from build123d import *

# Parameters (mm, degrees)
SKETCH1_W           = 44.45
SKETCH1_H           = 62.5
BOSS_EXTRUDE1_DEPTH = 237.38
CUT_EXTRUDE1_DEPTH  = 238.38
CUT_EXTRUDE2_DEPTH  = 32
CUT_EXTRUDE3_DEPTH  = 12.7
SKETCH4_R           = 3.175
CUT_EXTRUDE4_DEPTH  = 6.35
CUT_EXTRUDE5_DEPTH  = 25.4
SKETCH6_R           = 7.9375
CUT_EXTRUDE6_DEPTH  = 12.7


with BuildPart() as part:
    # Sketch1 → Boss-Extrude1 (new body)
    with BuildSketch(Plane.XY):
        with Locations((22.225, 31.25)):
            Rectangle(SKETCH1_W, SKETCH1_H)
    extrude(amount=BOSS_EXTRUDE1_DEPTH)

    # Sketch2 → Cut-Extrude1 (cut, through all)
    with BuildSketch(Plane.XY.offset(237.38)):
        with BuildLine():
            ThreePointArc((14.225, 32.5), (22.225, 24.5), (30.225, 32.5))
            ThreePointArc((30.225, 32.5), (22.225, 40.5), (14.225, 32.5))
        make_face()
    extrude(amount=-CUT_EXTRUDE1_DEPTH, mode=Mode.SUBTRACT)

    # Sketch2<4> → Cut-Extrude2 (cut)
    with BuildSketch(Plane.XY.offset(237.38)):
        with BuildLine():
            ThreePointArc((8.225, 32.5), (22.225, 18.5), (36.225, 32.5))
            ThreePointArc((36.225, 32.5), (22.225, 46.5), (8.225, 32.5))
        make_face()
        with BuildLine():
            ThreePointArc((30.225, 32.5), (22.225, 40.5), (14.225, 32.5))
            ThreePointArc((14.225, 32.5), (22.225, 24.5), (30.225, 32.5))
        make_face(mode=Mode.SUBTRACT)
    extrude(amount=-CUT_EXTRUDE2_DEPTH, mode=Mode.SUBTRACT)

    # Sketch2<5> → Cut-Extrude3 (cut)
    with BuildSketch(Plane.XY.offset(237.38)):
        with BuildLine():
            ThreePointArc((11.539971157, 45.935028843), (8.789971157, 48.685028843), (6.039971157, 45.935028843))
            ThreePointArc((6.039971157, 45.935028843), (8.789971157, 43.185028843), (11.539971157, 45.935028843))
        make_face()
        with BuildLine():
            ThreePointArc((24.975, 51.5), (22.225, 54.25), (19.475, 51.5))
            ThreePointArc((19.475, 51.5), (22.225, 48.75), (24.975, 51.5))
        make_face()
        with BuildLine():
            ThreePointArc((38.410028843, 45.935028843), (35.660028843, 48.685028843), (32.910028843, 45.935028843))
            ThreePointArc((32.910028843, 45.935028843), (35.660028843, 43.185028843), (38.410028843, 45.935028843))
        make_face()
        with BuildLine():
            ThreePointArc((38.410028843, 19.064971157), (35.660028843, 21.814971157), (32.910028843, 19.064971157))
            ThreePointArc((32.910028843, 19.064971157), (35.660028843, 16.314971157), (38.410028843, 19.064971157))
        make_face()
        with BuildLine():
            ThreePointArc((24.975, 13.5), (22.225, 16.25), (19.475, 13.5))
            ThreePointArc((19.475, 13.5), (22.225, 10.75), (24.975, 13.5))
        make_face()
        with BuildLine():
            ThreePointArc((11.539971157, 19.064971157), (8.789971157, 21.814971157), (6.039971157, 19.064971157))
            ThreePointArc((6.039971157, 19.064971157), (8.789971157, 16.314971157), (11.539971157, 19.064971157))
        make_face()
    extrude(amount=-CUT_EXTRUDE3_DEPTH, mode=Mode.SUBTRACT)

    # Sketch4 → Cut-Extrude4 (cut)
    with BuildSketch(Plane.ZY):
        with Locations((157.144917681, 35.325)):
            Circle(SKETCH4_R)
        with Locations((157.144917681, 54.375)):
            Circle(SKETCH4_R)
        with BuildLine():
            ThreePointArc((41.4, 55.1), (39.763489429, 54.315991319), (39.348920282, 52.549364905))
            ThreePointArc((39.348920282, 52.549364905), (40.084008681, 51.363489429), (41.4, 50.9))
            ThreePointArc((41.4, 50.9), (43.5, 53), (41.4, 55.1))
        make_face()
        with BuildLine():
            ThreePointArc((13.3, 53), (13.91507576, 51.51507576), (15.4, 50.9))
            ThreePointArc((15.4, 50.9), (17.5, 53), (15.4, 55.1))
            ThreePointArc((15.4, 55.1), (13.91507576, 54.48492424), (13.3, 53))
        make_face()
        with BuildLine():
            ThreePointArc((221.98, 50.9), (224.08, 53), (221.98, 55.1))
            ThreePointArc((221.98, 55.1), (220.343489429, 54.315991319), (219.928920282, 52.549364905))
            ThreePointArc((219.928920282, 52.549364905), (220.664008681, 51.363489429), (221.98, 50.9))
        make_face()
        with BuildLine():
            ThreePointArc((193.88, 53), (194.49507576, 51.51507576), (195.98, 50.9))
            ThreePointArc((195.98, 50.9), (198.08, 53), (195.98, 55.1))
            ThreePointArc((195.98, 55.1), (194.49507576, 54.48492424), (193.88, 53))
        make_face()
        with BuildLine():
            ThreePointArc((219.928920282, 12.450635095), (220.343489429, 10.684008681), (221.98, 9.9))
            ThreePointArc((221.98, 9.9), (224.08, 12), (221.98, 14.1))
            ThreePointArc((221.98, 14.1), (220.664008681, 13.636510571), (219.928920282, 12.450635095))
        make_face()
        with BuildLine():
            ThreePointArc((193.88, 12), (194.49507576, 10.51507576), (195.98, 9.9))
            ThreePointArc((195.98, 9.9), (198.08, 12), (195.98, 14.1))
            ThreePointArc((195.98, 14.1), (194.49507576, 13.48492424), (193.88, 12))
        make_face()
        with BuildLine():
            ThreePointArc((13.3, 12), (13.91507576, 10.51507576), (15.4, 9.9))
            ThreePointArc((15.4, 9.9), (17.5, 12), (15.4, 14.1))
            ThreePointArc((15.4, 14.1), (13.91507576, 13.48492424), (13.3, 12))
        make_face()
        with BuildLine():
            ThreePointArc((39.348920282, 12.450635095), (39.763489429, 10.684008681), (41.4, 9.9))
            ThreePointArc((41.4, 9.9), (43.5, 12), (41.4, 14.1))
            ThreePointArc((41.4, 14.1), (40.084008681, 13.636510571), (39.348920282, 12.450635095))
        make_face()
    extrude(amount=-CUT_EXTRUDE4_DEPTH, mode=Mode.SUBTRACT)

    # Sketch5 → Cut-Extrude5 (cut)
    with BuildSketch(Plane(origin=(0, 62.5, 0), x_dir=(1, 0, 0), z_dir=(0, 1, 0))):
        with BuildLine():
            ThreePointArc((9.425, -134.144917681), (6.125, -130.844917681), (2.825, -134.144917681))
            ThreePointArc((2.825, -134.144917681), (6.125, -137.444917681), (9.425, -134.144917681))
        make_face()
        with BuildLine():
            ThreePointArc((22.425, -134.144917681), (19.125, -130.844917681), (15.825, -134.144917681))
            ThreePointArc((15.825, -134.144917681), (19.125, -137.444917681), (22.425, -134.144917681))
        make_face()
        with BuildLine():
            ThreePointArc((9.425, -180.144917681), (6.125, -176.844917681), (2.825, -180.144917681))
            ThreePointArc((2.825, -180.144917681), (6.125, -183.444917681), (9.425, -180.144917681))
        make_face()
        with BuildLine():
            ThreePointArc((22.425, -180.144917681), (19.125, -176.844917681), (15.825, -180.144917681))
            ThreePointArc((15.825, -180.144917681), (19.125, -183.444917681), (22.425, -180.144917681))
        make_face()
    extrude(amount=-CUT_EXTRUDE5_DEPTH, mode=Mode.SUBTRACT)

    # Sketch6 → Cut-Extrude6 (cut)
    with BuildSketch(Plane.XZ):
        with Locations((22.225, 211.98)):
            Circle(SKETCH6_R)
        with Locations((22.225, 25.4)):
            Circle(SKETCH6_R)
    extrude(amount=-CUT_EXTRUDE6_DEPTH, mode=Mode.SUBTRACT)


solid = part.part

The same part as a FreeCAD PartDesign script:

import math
import FreeCAD as App
import Part
import Sketcher

V = App.Vector

doc = App.newDocument("Part")
body = doc.addObject("PartDesign::Body", "Body")

sketch1 = body.newObject("Sketcher::SketchObject", "Sketch")
sketch1.AttachmentSupport = (doc.getObject("XY_Plane"), [""])
sketch1.MapMode = "FlatFace"
sketch1.addGeometry(Part.LineSegment(V(0, 62, 0), V(0, 0, 0)), False)
sketch1.addGeometry(Part.LineSegment(V(0, 0, 0), V(44, 0, 0)), False)
sketch1.addGeometry(Part.LineSegment(V(44, 0, 0), V(44, 62, 0)), False)
sketch1.addGeometry(Part.LineSegment(V(44, 62, 0), V(0, 62, 0)), False)
sketch1.addConstraint(Sketcher.Constraint("Coincident", 0, 2, 1, 1))
sketch1.addConstraint(Sketcher.Constraint("Coincident", 1, 2, 2, 1))
sketch1.addConstraint(Sketcher.Constraint("Coincident", 2, 2, 3, 1))
sketch1.addConstraint(Sketcher.Constraint("Coincident", 3, 2, 0, 1))
sketch1.addConstraint(Sketcher.Constraint("Vertical", 0))
sketch1.addConstraint(Sketcher.Constraint("Horizontal", 1))
sketch1.addConstraint(Sketcher.Constraint("Vertical", 2))
sketch1.addConstraint(Sketcher.Constraint("Horizontal", 3))
sketch1.addConstraint(Sketcher.Constraint("Coincident", 0, 2, -1, 1))
sketch1.addConstraint(Sketcher.Constraint("DistanceY", 0, 2, 0, 1, 62.5))
sketch1.addConstraint(Sketcher.Constraint("DistanceX", 1, 1, 1, 2, 44.45))
pad1 = body.newObject("PartDesign::Pad", "Pad")
pad1.Profile = sketch1
pad1.Length = 237.38

sketch2 = body.newObject("Sketcher::SketchObject", "Sketch001")
sketch2.AttachmentSupport = (doc.getObject("XY_Plane"), [""])
sketch2.MapMode = "FlatFace"
sketch2.AttachmentOffset = App.Placement(V(0, 0, 237.38), App.Rotation())
sketch2.addGeometry(Part.Circle(V(22, 32, 0), V(0, 0, 1), 8), False)
sketch2.addConstraint(Sketcher.Constraint("Diameter", 0, 16.0))
sketch2.addConstraint(Sketcher.Constraint("DistanceY", -1, 1, 0, 3, 32.5))
sketch2.addConstraint(Sketcher.Constraint("DistanceX", -1, 1, 0, 3, 22.225))
pocket1 = body.newObject("PartDesign::Pocket", "Pocket")
pocket1.Profile = sketch2
pocket1.Type = "ThroughAll"

sketch3 = body.newObject("Sketcher::SketchObject", "Sketch002")
sketch3.AttachmentSupport = (doc.getObject("XY_Plane"), [""])
sketch3.MapMode = "FlatFace"
sketch3.AttachmentOffset = App.Placement(V(0, 0, 237.38), App.Rotation())
sketch3.addGeometry(Part.Circle(V(22, 32, 0), V(0, 0, 1), 14), False)
sketch3.addGeometry(Part.Circle(V(22, 32, 0), V(0, 0, 1), 8), False)
sketch3.addConstraint(Sketcher.Constraint("Coincident", 1, 3, 0, 3))
sketch3.addConstraint(Sketcher.Constraint("Diameter", 0, 28.0))
sketch3.addConstraint(Sketcher.Constraint("Diameter", 1, 16.0))
sketch3.addConstraint(Sketcher.Constraint("DistanceY", -1, 1, 0, 3, 32.5))
sketch3.addConstraint(Sketcher.Constraint("DistanceX", -1, 1, 0, 3, 22.225))
pocket2 = body.newObject("PartDesign::Pocket", "Pocket001")
pocket2.Profile = sketch3
pocket2.Length = 32

sketch4 = body.newObject("Sketcher::SketchObject", "Sketch003")
sketch4.AttachmentSupport = (doc.getObject("XY_Plane"), [""])
sketch4.MapMode = "FlatFace"
sketch4.AttachmentOffset = App.Placement(V(0, 0, 237.38), App.Rotation())
sketch4.addGeometry(Part.Circle(V(8.8, 45.9, 0), V(0, 0, 1), 2.8), False)
sketch4.addGeometry(Part.Circle(V(22.2, 51.5, 0), V(0, 0, 1), 2.8), False)
sketch4.addGeometry(Part.Circle(V(35.7, 45.9, 0), V(0, 0, 1), 2.8), False)
sketch4.addGeometry(Part.Circle(V(35.7, 19.1, 0), V(0, 0, 1), 2.8), False)
sketch4.addGeometry(Part.Circle(V(22.2, 13.5, 0), V(0, 0, 1), 2.8), False)
sketch4.addGeometry(Part.Circle(V(8.8, 19.1, 0), V(0, 0, 1), 2.8), False)
sketch4.addConstraint(Sketcher.Constraint("Equal", 0, 1))
sketch4.addConstraint(Sketcher.Constraint("Equal", 1, 2))
sketch4.addConstraint(Sketcher.Constraint("Equal", 2, 3))
sketch4.addConstraint(Sketcher.Constraint("Equal", 3, 4))
sketch4.addConstraint(Sketcher.Constraint("Equal", 4, 5))
sketch4.addConstraint(Sketcher.Constraint("Horizontal", 0, 3, 2, 3))
sketch4.addConstraint(Sketcher.Constraint("Horizontal", 3, 3, 5, 3))
sketch4.addConstraint(Sketcher.Constraint("Vertical", 2, 3, 3, 3))
sketch4.addConstraint(Sketcher.Constraint("Vertical", 1, 3, 4, 3))
sketch4.addConstraint(Sketcher.Constraint("Vertical", 0, 3, 5, 3))
sketch4.addConstraint(Sketcher.Constraint("Diameter", 0, 5.5))
sketch4.addConstraint(Sketcher.Constraint("DistanceY", 4, 3, 1, 3, 38.0))
sketch4.addConstraint(Sketcher.Constraint("DistanceY", -1, 1, 1, 3, 51.5))
sketch4.addConstraint(Sketcher.Constraint("DistanceX", -1, 1, 1, 3, 22.225))
sketch4.addConstraint(Sketcher.Constraint("DistanceX", -1, 1, 0, 3, 8.789971))
sketch4.addConstraint(Sketcher.Constraint("DistanceY", -1, 1, 0, 3, 45.935029))
sketch4.addConstraint(Sketcher.Constraint("DistanceX", -1, 1, 2, 3, 35.660029))
sketch4.addConstraint(Sketcher.Constraint("DistanceY", -1, 1, 3, 3, 19.064971))
pocket3 = body.newObject("PartDesign::Pocket", "Pocket002")
pocket3.Profile = sketch4
pocket3.Length = 12.7

sketch5 = body.newObject("Sketcher::SketchObject", "Sketch004")
sketch5.AttachmentSupport = (doc.getObject("YZ_Plane"), [""])
sketch5.MapMode = "FlatFace"
sketch5.addGeometry(Part.Circle(V(35.3, 157.1, 0), V(0, 0, 1), 3.2), False)
sketch5.addGeometry(Part.Circle(V(54.4, 157.1, 0), V(0, 0, 1), 3.2), False)
sketch5.addGeometry(Part.ArcOfCircle(Part.Circle(V(53, 41.4, 0), V(0, 0, 1), 2.1), math.radians(-102), math.radians(0)), False)
sketch5.addGeometry(Part.ArcOfCircle(Part.Circle(V(53, 41.4, 0), V(0, 0, 1), 2.1), math.radians(180), math.radians(258)), False)
sketch5.addGeometry(Part.ArcOfCircle(Part.Circle(V(53, 41.4, 0), V(0, 0, 1), 2.1), math.radians(0), math.radians(180)), False)
sketch5.addGeometry(Part.ArcOfCircle(Part.Circle(V(53, 15.4, 0), V(0, 0, 1), 2.1), math.radians(-180), math.radians(-90)), False)
sketch5.addGeometry(Part.ArcOfCircle(Part.Circle(V(53, 15.4, 0), V(0, 0, 1), 2.1), math.radians(0), math.radians(180)), False)
sketch5.addGeometry(Part.ArcOfCircle(Part.Circle(V(53, 15.4, 0), V(0, 0, 1), 2.1), math.radians(-90), math.radians(0)), False)
sketch5.addGeometry(Part.ArcOfCircle(Part.Circle(V(53, 222, 0), V(0, 0, 1), 2.1), math.radians(0), math.radians(180)), False)
sketch5.addGeometry(Part.ArcOfCircle(Part.Circle(V(53, 222, 0), V(0, 0, 1), 2.1), math.radians(-102), math.radians(0)), False)
sketch5.addGeometry(Part.ArcOfCircle(Part.Circle(V(53, 222, 0), V(0, 0, 1), 2.1), math.radians(180), math.radians(258)), False)
sketch5.addGeometry(Part.ArcOfCircle(Part.Circle(V(53, 196, 0), V(0, 0, 1), 2.1), math.radians(-180), math.radians(-90)), False)
sketch5.addGeometry(Part.ArcOfCircle(Part.Circle(V(53, 196, 0), V(0, 0, 1), 2.1), math.radians(0), math.radians(180)), False)
sketch5.addGeometry(Part.ArcOfCircle(Part.Circle(V(53, 196, 0), V(0, 0, 1), 2.1), math.radians(-90), math.radians(0)), False)
sketch5.addGeometry(Part.ArcOfCircle(Part.Circle(V(12, 222, 0), V(0, 0, 1), 2.1), math.radians(180), math.radians(282)), False)
sketch5.addGeometry(Part.ArcOfCircle(Part.Circle(V(12, 222, 0), V(0, 0, 1), 2.1), math.radians(0), math.radians(180)), False)
sketch5.addGeometry(Part.ArcOfCircle(Part.Circle(V(12, 222, 0), V(0, 0, 1), 2.1), math.radians(-78), math.radians(0)), False)
sketch5.addGeometry(Part.ArcOfCircle(Part.Circle(V(12, 196, 0), V(0, 0, 1), 2.1), math.radians(-180), math.radians(-90)), False)
sketch5.addGeometry(Part.ArcOfCircle(Part.Circle(V(12, 196, 0), V(0, 0, 1), 2.1), math.radians(0), math.radians(180)), False)
sketch5.addGeometry(Part.ArcOfCircle(Part.Circle(V(12, 196, 0), V(0, 0, 1), 2.1), math.radians(-90), math.radians(0)), False)
sketch5.addGeometry(Part.ArcOfCircle(Part.Circle(V(12, 15.4, 0), V(0, 0, 1), 2.1), math.radians(-180), math.radians(-90)), False)
sketch5.addGeometry(Part.ArcOfCircle(Part.Circle(V(12, 15.4, 0), V(0, 0, 1), 2.1), math.radians(0), math.radians(180)), False)
sketch5.addGeometry(Part.ArcOfCircle(Part.Circle(V(12, 15.4, 0), V(0, 0, 1), 2.1), math.radians(-90), math.radians(0)), False)
sketch5.addGeometry(Part.ArcOfCircle(Part.Circle(V(12, 41.4, 0), V(0, 0, 1), 2.1), math.radians(180), math.radians(282)), False)
sketch5.addGeometry(Part.ArcOfCircle(Part.Circle(V(12, 41.4, 0), V(0, 0, 1), 2.1), math.radians(0), math.radians(180)), False)
sketch5.addGeometry(Part.ArcOfCircle(Part.Circle(V(12, 41.4, 0), V(0, 0, 1), 2.1), math.radians(-78), math.radians(0)), False)
sketch5.addConstraint(Sketcher.Constraint("Tangent", 2, 1, 3, 2))
sketch5.addConstraint(Sketcher.Constraint("Tangent", 3, 1, 4, 2))
sketch5.addConstraint(Sketcher.Constraint("Tangent", 4, 1, 2, 2))
sketch5.addConstraint(Sketcher.Constraint("Tangent", 5, 1, 6, 2))
sketch5.addConstraint(Sketcher.Constraint("Tangent", 6, 1, 7, 2))
sketch5.addConstraint(Sketcher.Constraint("Tangent", 7, 1, 5, 2))
sketch5.addConstraint(Sketcher.Constraint("Tangent", 8, 1, 9, 2))
sketch5.addConstraint(Sketcher.Constraint("Tangent", 9, 1, 10, 2))
sketch5.addConstraint(Sketcher.Constraint("Tangent", 10, 1, 8, 2))
sketch5.addConstraint(Sketcher.Constraint("Tangent", 11, 1, 12, 2))
sketch5.addConstraint(Sketcher.Constraint("Tangent", 12, 1, 13, 2))
sketch5.addConstraint(Sketcher.Constraint("Tangent", 13, 1, 11, 2))
sketch5.addConstraint(Sketcher.Constraint("Tangent", 14, 1, 15, 2))
sketch5.addConstraint(Sketcher.Constraint("Tangent", 15, 1, 16, 2))
sketch5.addConstraint(Sketcher.Constraint("Tangent", 16, 1, 14, 2))
sketch5.addConstraint(Sketcher.Constraint("Tangent", 17, 1, 18, 2))
sketch5.addConstraint(Sketcher.Constraint("Tangent", 18, 1, 19, 2))
sketch5.addConstraint(Sketcher.Constraint("Tangent", 19, 1, 17, 2))
sketch5.addConstraint(Sketcher.Constraint("Tangent", 20, 1, 21, 2))
sketch5.addConstraint(Sketcher.Constraint("Tangent", 21, 1, 22, 2))
sketch5.addConstraint(Sketcher.Constraint("Tangent", 22, 1, 20, 2))
sketch5.addConstraint(Sketcher.Constraint("Tangent", 23, 1, 24, 2))
sketch5.addConstraint(Sketcher.Constraint("Tangent", 24, 1, 25, 2))
sketch5.addConstraint(Sketcher.Constraint("Tangent", 25, 1, 23, 2))
sketch5.addConstraint(Sketcher.Constraint("Equal", 0, 1))
sketch5.addConstraint(Sketcher.Constraint("Equal", 4, 5))
sketch5.addConstraint(Sketcher.Constraint("Equal", 7, 8))
sketch5.addConstraint(Sketcher.Constraint("Equal", 10, 11))
sketch5.addConstraint(Sketcher.Constraint("Equal", 13, 14))
sketch5.addConstraint(Sketcher.Constraint("Equal", 16, 17))
sketch5.addConstraint(Sketcher.Constraint("Equal", 19, 20))
sketch5.addConstraint(Sketcher.Constraint("Equal", 22, 23))
sketch5.addConstraint(Sketcher.Constraint("Horizontal", 0, 3, 1, 3))
sketch5.addConstraint(Sketcher.Constraint("Horizontal", 10, 3, 14, 3))
sketch5.addConstraint(Sketcher.Constraint("Horizontal", 13, 3, 17, 3))
sketch5.addConstraint(Sketcher.Constraint("Horizontal", 7, 3, 20, 3))
sketch5.addConstraint(Sketcher.Constraint("Horizontal", 4, 3, 23, 3))
sketch5.addConstraint(Sketcher.Constraint("Horizontal", 25, 3, 3, 1))
sketch5.addConstraint(Sketcher.Constraint("Horizontal", 3, 1, 4, 1))
sketch5.addConstraint(Sketcher.Constraint("Horizontal", 22, 3, 5, 1))
sketch5.addConstraint(Sketcher.Constraint("Horizontal", 5, 1, 6, 1))
sketch5.addConstraint(Sketcher.Constraint("Horizontal", 16, 3, 8, 1))
sketch5.addConstraint(Sketcher.Constraint("Horizontal", 8, 1, 10, 1))
sketch5.addConstraint(Sketcher.Constraint("Horizontal", 19, 3, 11, 1))
sketch5.addConstraint(Sketcher.Constraint("Horizontal", 11, 1, 12, 1))
sketch5.addConstraint(Sketcher.Constraint("Horizontal", 10, 1, 14, 1))
sketch5.addConstraint(Sketcher.Constraint("Horizontal", 14, 1, 15, 1))
sketch5.addConstraint(Sketcher.Constraint("Horizontal", 9, 1, 16, 1))
sketch5.addConstraint(Sketcher.Constraint("Horizontal", 12, 1, 17, 1))
sketch5.addConstraint(Sketcher.Constraint("Horizontal", 17, 1, 18, 1))
sketch5.addConstraint(Sketcher.Constraint("Horizontal", 6, 1, 20, 1))
sketch5.addConstraint(Sketcher.Constraint("Horizontal", 20, 1, 21, 1))
sketch5.addConstraint(Sketcher.Constraint("Horizontal", 4, 1, 23, 1))
sketch5.addConstraint(Sketcher.Constraint("Horizontal", 23, 1, 24, 1))
sketch5.addConstraint(Sketcher.Constraint("Horizontal", 2, 1, 25, 1))
sketch5.addConstraint(Sketcher.Constraint("Vertical", 4, 3, 5, 3))
sketch5.addConstraint(Sketcher.Constraint("Vertical", 7, 3, 8, 3))
sketch5.addConstraint(Sketcher.Constraint("Vertical", 10, 3, 11, 3))
sketch5.addConstraint(Sketcher.Constraint("Vertical", 16, 3, 17, 3))
sketch5.addConstraint(Sketcher.Constraint("Vertical", 19, 3, 20, 3))
sketch5.addConstraint(Sketcher.Constraint("Vertical", 22, 3, 23, 3))
sketch5.addConstraint(Sketcher.Constraint("Vertical", 13, 3, 7, 1))
sketch5.addConstraint(Sketcher.Constraint("Vertical", 2, 1, 9, 1))
sketch5.addConstraint(Sketcher.Constraint("Vertical", 7, 1, 13, 1))
sketch5.addConstraint(Sketcher.Constraint("Vertical", 25, 3, 19, 1))
sketch5.addConstraint(Sketcher.Constraint("Vertical", 19, 1, 22, 1))
sketch5.addConstraint(Sketcher.Constraint("Radius", 2, 2.1))
sketch5.addConstraint(Sketcher.Constraint("Diameter", 0, 6.35))
sketch5.addConstraint(Sketcher.Constraint("DistanceX", -1, 1, 2, 3, 53.0))
sketch5.addConstraint(Sketcher.Constraint("DistanceX", -1, 1, 14, 3, 12.0))
sketch5.addConstraint(Sketcher.Constraint("DistanceY", 5, 3, 2, 3, 26.0))
sketch5.addConstraint(Sketcher.Constraint("DistanceY", 11, 3, 9, 3, 26.0))
sketch5.addConstraint(Sketcher.Constraint("DistanceY", -1, 1, 2, 3, 41.4))
sketch5.addConstraint(Sketcher.Constraint("DistanceY", -1, 1, 8, 3, 221.98))
sketch5.addConstraint(Sketcher.Constraint("DistanceX", 0, 3, 1, 3, 19.05))
sketch5.addConstraint(Sketcher.Constraint("DistanceX", -1, 1, 0, 3, 35.325))
sketch5.addConstraint(Sketcher.Constraint("DistanceY", -1, 1, 2, 1, 39.34892))
sketch5.addConstraint(Sketcher.Constraint("DistanceY", -1, 1, 0, 3, 157.144918))
pocket4 = body.newObject("PartDesign::Pocket", "Pocket003")
pocket4.Profile = sketch5
pocket4.Length = 6.35
pocket4.Reversed = True

sketch6 = body.newObject("Sketcher::SketchObject", "Sketch005")
sketch6.AttachmentSupport = (doc.getObject("XZ_Plane"), [""])
sketch6.MapMode = "FlatFace"
sketch6.AttachmentOffset = App.Placement(V(0, 0, -62.5), App.Rotation())
sketch6.addGeometry(Part.Circle(V(6.1, 134.1, 0), V(0, 0, 1), 3.3), False)
sketch6.addGeometry(Part.Circle(V(19.1, 134.1, 0), V(0, 0, 1), 3.3), False)
sketch6.addGeometry(Part.Circle(V(6.1, 180.1, 0), V(0, 0, 1), 3.3), False)
sketch6.addGeometry(Part.Circle(V(19.1, 180.1, 0), V(0, 0, 1), 3.3), False)
sketch6.addConstraint(Sketcher.Constraint("Equal", 0, 1))
sketch6.addConstraint(Sketcher.Constraint("Equal", 1, 2))
sketch6.addConstraint(Sketcher.Constraint("Equal", 2, 3))
sketch6.addConstraint(Sketcher.Constraint("Horizontal", 0, 3, 1, 3))
sketch6.addConstraint(Sketcher.Constraint("Horizontal", 2, 3, 3, 3))
sketch6.addConstraint(Sketcher.Constraint("Vertical", 0, 3, 2, 3))
sketch6.addConstraint(Sketcher.Constraint("Vertical", 1, 3, 3, 3))
sketch6.addConstraint(Sketcher.Constraint("Diameter", 0, 6.6))
sketch6.addConstraint(Sketcher.Constraint("DistanceX", 0, 3, 1, 3, 13.0))
sketch6.addConstraint(Sketcher.Constraint("DistanceY", 0, 3, 2, 3, 46.0))
sketch6.addConstraint(Sketcher.Constraint("DistanceX", -1, 1, 0, 3, 6.125))
sketch6.addConstraint(Sketcher.Constraint("DistanceY", -1, 1, 0, 3, 134.144918))
pocket5 = body.newObject("PartDesign::Pocket", "Pocket004")
pocket5.Profile = sketch6
pocket5.Length = 25.4
pocket5.Reversed = True

sketch7 = body.newObject("Sketcher::SketchObject", "Sketch006")
sketch7.AttachmentSupport = (doc.getObject("XZ_Plane"), [""])
sketch7.MapMode = "FlatFace"
sketch7.addGeometry(Part.Circle(V(22, 212, 0), V(0, 0, 1), 8), False)
sketch7.addGeometry(Part.Circle(V(22, 25, 0), V(0, 0, 1), 8), False)
sketch7.addConstraint(Sketcher.Constraint("Equal", 0, 1))
sketch7.addConstraint(Sketcher.Constraint("Vertical", 0, 3, 1, 3))
sketch7.addConstraint(Sketcher.Constraint("Diameter", 0, 15.875))
sketch7.addConstraint(Sketcher.Constraint("DistanceY", -1, 1, 1, 3, 25.4))
sketch7.addConstraint(Sketcher.Constraint("DistanceY", -1, 1, 0, 3, 211.98))
sketch7.addConstraint(Sketcher.Constraint("DistanceX", -1, 1, 0, 3, 22.225))
pocket6 = body.newObject("PartDesign::Pocket", "Pocket005")
pocket6.Profile = sketch7
pocket6.Length = 12.7

doc.recompute()
